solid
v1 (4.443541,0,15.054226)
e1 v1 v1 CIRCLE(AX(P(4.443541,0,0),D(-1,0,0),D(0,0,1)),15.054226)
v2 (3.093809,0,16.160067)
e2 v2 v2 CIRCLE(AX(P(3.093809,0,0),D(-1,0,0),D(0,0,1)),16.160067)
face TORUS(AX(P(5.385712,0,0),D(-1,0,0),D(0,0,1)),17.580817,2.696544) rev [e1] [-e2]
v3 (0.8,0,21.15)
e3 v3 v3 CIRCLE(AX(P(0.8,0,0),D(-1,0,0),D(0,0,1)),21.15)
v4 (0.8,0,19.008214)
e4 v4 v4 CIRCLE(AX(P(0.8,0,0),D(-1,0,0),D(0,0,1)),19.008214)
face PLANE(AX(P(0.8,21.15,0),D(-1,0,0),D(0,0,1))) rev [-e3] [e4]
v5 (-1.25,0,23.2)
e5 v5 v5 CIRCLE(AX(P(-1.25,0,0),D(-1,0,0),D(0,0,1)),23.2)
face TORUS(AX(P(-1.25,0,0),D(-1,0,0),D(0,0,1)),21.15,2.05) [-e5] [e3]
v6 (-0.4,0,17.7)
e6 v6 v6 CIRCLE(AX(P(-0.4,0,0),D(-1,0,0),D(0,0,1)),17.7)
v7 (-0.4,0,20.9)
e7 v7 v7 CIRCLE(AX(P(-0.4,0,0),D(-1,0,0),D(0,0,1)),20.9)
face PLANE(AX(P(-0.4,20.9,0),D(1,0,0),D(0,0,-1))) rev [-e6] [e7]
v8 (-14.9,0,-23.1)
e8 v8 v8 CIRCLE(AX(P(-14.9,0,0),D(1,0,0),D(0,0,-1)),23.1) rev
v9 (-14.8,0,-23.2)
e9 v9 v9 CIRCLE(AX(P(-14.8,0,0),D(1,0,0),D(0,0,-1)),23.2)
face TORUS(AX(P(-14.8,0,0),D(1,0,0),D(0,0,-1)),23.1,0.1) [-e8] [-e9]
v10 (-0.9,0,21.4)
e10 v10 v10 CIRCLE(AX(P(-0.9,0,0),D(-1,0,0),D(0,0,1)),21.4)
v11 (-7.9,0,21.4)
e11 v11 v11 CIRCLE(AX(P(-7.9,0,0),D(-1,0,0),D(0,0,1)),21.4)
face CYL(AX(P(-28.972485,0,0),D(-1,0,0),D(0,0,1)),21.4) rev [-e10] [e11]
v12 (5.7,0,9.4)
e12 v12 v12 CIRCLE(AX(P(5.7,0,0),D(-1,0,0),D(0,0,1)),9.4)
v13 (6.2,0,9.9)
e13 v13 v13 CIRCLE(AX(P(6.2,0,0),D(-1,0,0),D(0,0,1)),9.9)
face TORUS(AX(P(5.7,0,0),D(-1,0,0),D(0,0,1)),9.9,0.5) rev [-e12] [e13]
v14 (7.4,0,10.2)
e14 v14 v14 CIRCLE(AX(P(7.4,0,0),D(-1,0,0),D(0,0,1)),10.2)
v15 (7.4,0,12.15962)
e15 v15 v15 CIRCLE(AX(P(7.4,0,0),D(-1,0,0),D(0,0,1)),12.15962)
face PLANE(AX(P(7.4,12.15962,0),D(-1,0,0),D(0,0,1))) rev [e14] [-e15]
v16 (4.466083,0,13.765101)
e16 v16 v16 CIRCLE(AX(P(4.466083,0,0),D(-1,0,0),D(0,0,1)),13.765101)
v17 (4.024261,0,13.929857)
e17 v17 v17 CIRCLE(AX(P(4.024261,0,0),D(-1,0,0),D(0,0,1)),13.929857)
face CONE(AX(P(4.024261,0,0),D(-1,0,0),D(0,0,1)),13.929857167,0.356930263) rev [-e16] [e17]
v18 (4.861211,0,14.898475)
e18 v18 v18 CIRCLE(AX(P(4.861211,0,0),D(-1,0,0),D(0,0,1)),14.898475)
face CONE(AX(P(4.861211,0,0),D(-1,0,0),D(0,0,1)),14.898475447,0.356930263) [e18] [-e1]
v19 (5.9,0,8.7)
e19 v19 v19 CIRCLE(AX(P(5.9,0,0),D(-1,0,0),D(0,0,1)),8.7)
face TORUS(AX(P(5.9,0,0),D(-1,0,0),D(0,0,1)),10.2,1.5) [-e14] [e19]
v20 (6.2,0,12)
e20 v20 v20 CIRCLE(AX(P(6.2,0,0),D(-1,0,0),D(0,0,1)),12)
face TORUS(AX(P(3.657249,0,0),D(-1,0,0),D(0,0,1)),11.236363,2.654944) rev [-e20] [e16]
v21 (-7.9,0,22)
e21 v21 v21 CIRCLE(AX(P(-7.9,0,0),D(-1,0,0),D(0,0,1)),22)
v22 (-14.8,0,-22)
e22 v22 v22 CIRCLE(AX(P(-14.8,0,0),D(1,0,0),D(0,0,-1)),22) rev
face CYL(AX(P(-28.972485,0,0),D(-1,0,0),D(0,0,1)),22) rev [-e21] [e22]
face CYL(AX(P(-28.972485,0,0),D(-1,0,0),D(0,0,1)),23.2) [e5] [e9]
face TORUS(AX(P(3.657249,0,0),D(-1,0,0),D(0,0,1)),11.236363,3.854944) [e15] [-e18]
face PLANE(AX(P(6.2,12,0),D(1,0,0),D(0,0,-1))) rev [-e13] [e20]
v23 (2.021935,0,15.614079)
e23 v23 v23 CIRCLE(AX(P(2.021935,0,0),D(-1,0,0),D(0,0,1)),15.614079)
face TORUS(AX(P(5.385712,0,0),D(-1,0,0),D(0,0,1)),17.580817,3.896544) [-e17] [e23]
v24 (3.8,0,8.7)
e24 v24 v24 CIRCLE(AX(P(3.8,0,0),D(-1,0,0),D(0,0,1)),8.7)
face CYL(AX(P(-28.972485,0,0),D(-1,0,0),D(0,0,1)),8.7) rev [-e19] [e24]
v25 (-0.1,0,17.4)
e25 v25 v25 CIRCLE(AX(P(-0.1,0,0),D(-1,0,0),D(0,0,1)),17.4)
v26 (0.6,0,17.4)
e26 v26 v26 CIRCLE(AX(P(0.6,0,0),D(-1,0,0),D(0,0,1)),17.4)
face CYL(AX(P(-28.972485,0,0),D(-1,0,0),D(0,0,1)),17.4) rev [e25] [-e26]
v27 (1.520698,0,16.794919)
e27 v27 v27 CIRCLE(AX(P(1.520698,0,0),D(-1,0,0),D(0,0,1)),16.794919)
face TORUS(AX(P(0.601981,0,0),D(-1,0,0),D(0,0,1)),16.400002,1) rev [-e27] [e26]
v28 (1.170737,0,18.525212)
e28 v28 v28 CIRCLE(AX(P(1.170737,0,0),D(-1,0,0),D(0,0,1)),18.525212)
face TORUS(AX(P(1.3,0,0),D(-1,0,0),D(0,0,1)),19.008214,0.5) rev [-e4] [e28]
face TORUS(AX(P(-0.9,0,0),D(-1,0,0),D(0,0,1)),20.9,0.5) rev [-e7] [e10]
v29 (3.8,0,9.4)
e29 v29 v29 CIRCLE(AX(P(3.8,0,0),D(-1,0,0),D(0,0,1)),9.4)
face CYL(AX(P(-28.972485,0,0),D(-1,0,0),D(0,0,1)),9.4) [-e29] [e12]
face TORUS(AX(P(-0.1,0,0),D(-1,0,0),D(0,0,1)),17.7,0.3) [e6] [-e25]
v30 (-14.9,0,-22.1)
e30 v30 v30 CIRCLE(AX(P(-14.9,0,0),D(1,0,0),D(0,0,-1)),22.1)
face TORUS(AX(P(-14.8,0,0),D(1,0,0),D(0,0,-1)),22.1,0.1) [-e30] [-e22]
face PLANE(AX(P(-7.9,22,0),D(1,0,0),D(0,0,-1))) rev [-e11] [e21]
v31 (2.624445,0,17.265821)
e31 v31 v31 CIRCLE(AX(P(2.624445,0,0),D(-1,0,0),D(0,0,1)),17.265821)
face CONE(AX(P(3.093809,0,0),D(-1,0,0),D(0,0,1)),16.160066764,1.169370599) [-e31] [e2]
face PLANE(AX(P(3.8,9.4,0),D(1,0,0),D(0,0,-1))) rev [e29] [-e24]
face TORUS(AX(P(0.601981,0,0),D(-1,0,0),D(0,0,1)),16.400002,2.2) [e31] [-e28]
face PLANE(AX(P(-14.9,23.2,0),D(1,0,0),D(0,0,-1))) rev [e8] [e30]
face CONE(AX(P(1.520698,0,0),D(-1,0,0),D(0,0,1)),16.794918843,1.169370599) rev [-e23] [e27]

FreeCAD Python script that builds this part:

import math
import FreeCAD as App
import Part
import Sketcher

V = App.Vector
Q = App.Units.Quantity


def edges_at(feature, points):
    """Names of the edges that pass closest to the given points."""
    edges = feature.Shape.Edges
    near = lambda p: min(range(len(edges)), key=lambda i: edges[i].distToShape(Part.Vertex(*p))[0])
    return sorted({f"Edge{near(p) + 1}" for p in points})

doc = App.newDocument("Part")
body = doc.addObject("PartDesign::Body", "Body")

# Sketch on XY plane
sketch1 = body.newObject("Sketcher::SketchObject", "Sketch")
sketch1.AttachmentSupport = (doc.getObject("XY_Plane"), [""])
sketch1.MapMode = "FlatFace"
sketch1.addGeometry(Part.LineSegment(V(-14.9, 22, 0), V(-7.9, 22, 0)), False)
sketch1.addGeometry(Part.LineSegment(V(-7.9, 22, 0), V(-7.9, 21.4, 0)), False)
sketch1.addGeometry(Part.LineSegment(V(-7.9, 21.4, 0), V(-0.9, 21.4, 0)), False)
sketch1.addGeometry(Part.ArcOfCircle(Part.Circle(V(-0.9, 20.9, 0), V(0, 0, 1), 0.5), math.radians(0), math.radians(90)), False)
sketch1.addGeometry(Part.LineSegment(V(-0.4, 20.9, 0), V(-0.4, 17.7, 0)), False)
sketch1.addGeometry(Part.ArcOfCircle(Part.Circle(V(-0.1, 17.7, 0), V(0, 0, 1), 0.3), math.radians(-180), math.radians(-90)), False)
sketch1.addGeometry(Part.LineSegment(V(-0.1, 17.4, 0), V(0.6, 17.4, 0)), False)
sketch1.addGeometry(Part.ArcOfCircle(Part.Circle(V(0.601981, 16.400002, 0), V(0, 0, 1), 1), math.radians(23.26079), math.radians(90.113524)), False)
sketch1.addGeometry(Part.LineSegment(V(1.520698, 16.794919, 0), V(2.021935, 15.614079, 0)), False)
sketch1.addGeometry(Part.ArcOfCircle(Part.Circle(V(5.385712, 17.580817, 0), V(0, 0, 1), 3.896544), math.radians(-149.685973), math.radians(-110.450598)), False)
sketch1.addGeometry(Part.LineSegment(V(4.024261, 13.929857, 0), V(4.466083, 13.765101, 0)), False)
sketch1.addGeometry(Part.ArcOfCircle(Part.Circle(V(3.657249, 11.236363, 0), V(0, 0, 1), 2.654944), math.radians(16.71601), math.radians(72.262749)), False)
sketch1.addGeometry(Part.LineSegment(V(6.2, 12, 0), V(6.2, 9.9, 0)), False)
sketch1.addGeometry(Part.ArcOfCircle(Part.Circle(V(5.7, 9.9, 0), V(0, 0, 1), 0.5), math.radians(-90), math.radians(0)), False)
sketch1.addGeometry(Part.LineSegment(V(5.7, 9.4, 0), V(3.8, 9.4, 0)), False)
sketch1.addGeometry(Part.LineSegment(V(3.8, 9.4, 0), V(3.8, 8.7, 0)), False)
sketch1.addGeometry(Part.LineSegment(V(3.8, 8.7, 0), V(5.9, 8.7, 0)), False)
sketch1.addGeometry(Part.ArcOfCircle(Part.Circle(V(5.9, 10.2, 0), V(0, 0, 1), 1.5), math.radians(-90), math.radians(0)), False)
sketch1.addGeometry(Part.LineSegment(V(7.4, 10.2, 0), V(7.4, 12.15962, 0)), False)
sketch1.addGeometry(Part.ArcOfCircle(Part.Circle(V(3.657249, 11.236363, 0), V(0, 0, 1), 3.854944), math.radians(13.856989), math.radians(71.801106)), False)
sketch1.addGeometry(Part.LineSegment(V(4.861211, 14.898475, 0), V(4.443541, 15.054226, 0)), False)
sketch1.addGeometry(Part.ArcOfCircle(Part.Circle(V(5.385712, 17.580817, 0), V(0, 0, 1), 2.696544), math.radians(-148.205238), math.radians(-110.450598)), False)
sketch1.addGeometry(Part.LineSegment(V(3.093809, 16.160067, 0), V(2.624445, 17.265821, 0)), False)
sketch1.addGeometry(Part.ArcOfCircle(Part.Circle(V(0.601981, 16.400002, 0), V(0, 0, 1), 2.2), math.radians(23.175825), math.radians(75.017416)), False)
sketch1.addGeometry(Part.ArcOfCircle(Part.Circle(V(1.3, 19.008214, 0), V(0, 0, 1), 0.5), math.radians(-180), math.radians(-104.982584)), False)
sketch1.addGeometry(Part.LineSegment(V(0.8, 19.008214, 0), V(0.8, 21.15, 0)), False)
sketch1.addGeometry(Part.ArcOfCircle(Part.Circle(V(-1.25, 21.15, 0), V(0, 0, 1), 2.05), math.radians(0), math.radians(90)), False)
sketch1.addGeometry(Part.LineSegment(V(-1.25, 23.2, 0), V(-14.9, 23.2, 0)), False)
sketch1.addGeometry(Part.LineSegment(V(-14.9, 23.2, 0), V(-14.9, 22, 0)), False)
sketch1.addConstraint(Sketcher.Constraint("Coincident", 0, 2, 1, 1))
sketch1.addConstraint(Sketcher.Constraint("Coincident", 1, 2, 2, 1))
sketch1.addConstraint(Sketcher.Constraint("Coincident", 2, 2, 3, 2))
sketch1.addConstraint(Sketcher.Constraint("Coincident", 3, 1, 4, 1))
sketch1.addConstraint(Sketcher.Constraint("Coincident", 4, 2, 5, 1))
sketch1.addConstraint(Sketcher.Constraint("Coincident", 5, 2, 6, 1))
sketch1.addConstraint(Sketcher.Constraint("Coincident", 6, 2, 7, 2))
sketch1.addConstraint(Sketcher.Constraint("Coincident", 7, 1, 8, 1))
sketch1.addConstraint(Sketcher.Constraint("Coincident", 8, 2, 9, 1))
sketch1.addConstraint(Sketcher.Constraint("Coincident", 9, 2, 10, 1))
sketch1.addConstraint(Sketcher.Constraint("Coincident", 10, 2, 11, 2))
sketch1.addConstraint(Sketcher.Constraint("Coincident", 11, 1, 12, 1))
sketch1.addConstraint(Sketcher.Constraint("Coincident", 12, 2, 13, 2))
sketch1.addConstraint(Sketcher.Constraint("Coincident", 13, 1, 14, 1))
sketch1.addConstraint(Sketcher.Constraint("Coincident", 14, 2, 15, 1))
sketch1.addConstraint(Sketcher.Constraint("Coincident", 15, 2, 16, 1))
sketch1.addConstraint(Sketcher.Constraint("Coincident", 16, 2, 17, 1))
sketch1.addConstraint(Sketcher.Constraint("Coincident", 17, 2, 18, 1))
sketch1.addConstraint(Sketcher.Constraint("Coincident", 18, 2, 19, 1))
sketch1.addConstraint(Sketcher.Constraint("Coincident", 19, 2, 20, 1))
sketch1.addConstraint(Sketcher.Constraint("Coincident", 20, 2, 21, 2))
sketch1.addConstraint(Sketcher.Constraint("Coincident", 21, 1, 22, 1))
sketch1.addConstraint(Sketcher.Constraint("Coincident", 22, 2, 23, 1))
sketch1.addConstraint(Sketcher.Constraint("Coincident", 23, 2, 24, 2))
sketch1.addConstraint(Sketcher.Constraint("Coincident", 24, 1, 25, 1))
sketch1.addConstraint(Sketcher.Constraint("Coincident", 25, 2, 26, 1))
sketch1.addConstraint(Sketcher.Constraint("Coincident", 26, 2, 27, 1))
sketch1.addConstraint(Sketcher.Constraint("Coincident", 27, 2, 28, 1))
sketch1.addConstraint(Sketcher.Constraint("Coincident", 28, 2, 0, 1))
sketch1.addConstraint(Sketcher.Constraint("Horizontal", 0))
sketch1.addConstraint(Sketcher.Constraint("Vertical", 1))
sketch1.addConstraint(Sketcher.Constraint("Horizontal", 2))
sketch1.addConstraint(Sketcher.Constraint("Vertical", 4))
sketch1.addConstraint(Sketcher.Constraint("Horizontal", 6))
sketch1.addConstraint(Sketcher.Constraint("Vertical", 12))
sketch1.addConstraint(Sketcher.Constraint("Horizontal", 14))
sketch1.addConstraint(Sketcher.Constraint("Vertical", 15))
sketch1.addConstraint(Sketcher.Constraint("Horizontal", 16))
sketch1.addConstraint(Sketcher.Constraint("Vertical", 18))
sketch1.addConstraint(Sketcher.Constraint("Vertical", 25))
sketch1.addConstraint(Sketcher.Constraint("Horizontal", 27))
sketch1.addConstraint(Sketcher.Constraint("Vertical", 28))
sketch1.addConstraint(Sketcher.Constraint("Coincident", 19, 3, 11, 3))
sketch1.addConstraint(Sketcher.Constraint("Coincident", 21, 3, 9, 3))
sketch1.addConstraint(Sketcher.Constraint("Coincident", 23, 3, 7, 3))
sketch1.addConstraint(Sketcher.Constraint("Radius", 7, Q("1 mm")))
sketch1.addConstraint(Sketcher.Constraint("Radius", 3, Q("0.5 mm")))
sketch1.addConstraint(Sketcher.Constraint("Radius", 5, Q("0.3 mm")))
sketch1.addConstraint(Sketcher.Constraint("Radius", 13, Q("0.5 mm")))
sketch1.addConstraint(Sketcher.Constraint("Radius", 17, Q("1.5 mm")))
sketch1.addConstraint(Sketcher.Constraint("Radius", 23, Q("2.2 mm")))
sketch1.addConstraint(Sketcher.Constraint("Radius", 24, Q("0.5 mm")))
sketch1.addConstraint(Sketcher.Constraint("DistanceX", 0, 1, 0, 2, Q("7 mm")))
sketch1.addConstraint(Sketcher.Constraint("DistanceX", 2, 1, 2, 2, Q("7 mm")))
sketch1.addConstraint(Sketcher.Constraint("Radius", 26, Q("2.05 mm")))
sketch1.addConstraint(Sketcher.Constraint("DistanceX", 6, 1, 6, 2, Q("0.7 mm")))
sketch1.addConstraint(Sketcher.Constraint("DistanceX", 14, 2, 14, 1, Q("1.9 mm")))
sketch1.addConstraint(Sketcher.Constraint("DistanceX", 16, 1, 16, 2, Q("2.1 mm")))
sketch1.addConstraint(Sketcher.Constraint("DistanceY", 1, 2, 1, 1, Q("0.6 mm")))
sketch1.addConstraint(Sketcher.Constraint("DistanceY", 4, 2, 4, 1, Q("3.2 mm")))
sketch1.addConstraint(Sketcher.Constraint("DistanceY", 12, 2, 12, 1, Q("2.1 mm")))
sketch1.addConstraint(Sketcher.Constraint("DistanceY", 15, 2, 15, 1, Q("0.7 mm")))
sketch1.addConstraint(Sketcher.Constraint("DistanceY", 28, 2, 28, 1, Q("1.2 mm")))
sketch1.addConstraint(Sketcher.Constraint("DistanceY", -1, 1, 0, 2, Q("22 mm")))
sketch1.addConstraint(Sketcher.Constraint("DistanceY", -1, 1, 11, 1, Q("12 mm")))
sketch1.addConstraint(Sketcher.Constraint("DistanceY", 13, 3, 3, 3, Q("11 mm")))
sketch1.addConstraint(Sketcher.Constraint("DistanceX", 5, 3, 17, 3, Q("6 mm")))
sketch1.addConstraint(Sketcher.Constraint("DistanceX", 0, 2, 3, 3, Q("7 mm")))
sketch1.addConstraint(Sketcher.Constraint("DistanceY", 7, 3, 2, 2, Q("4.999998 mm")))
sketch1.addConstraint(Sketcher.Constraint("DistanceX", 4, 2, 6, 2, Q("1 mm")))
sketch1.addConstraint(Sketcher.Constraint("DistanceX", 27, 2, 27, 1, Q("13.65 mm")))
sketch1.addConstraint(Sketcher.Constraint("DistanceX", 3, 3, -1, 1, Q("0.9 mm")))
sketch1.addConstraint(Sketcher.Constraint("DistanceX", -1, 1, 13, 3, Q("5.7 mm")))
sketch1.addConstraint(Sketcher.Constraint("DistanceX", -1, 1, 24, 3, Q("1.3 mm")))
sketch1.addConstraint(Sketcher.Constraint("DistanceY", -1, 1, 3, 1, Q("20.9 mm")))
sketch1.addConstraint(Sketcher.Constraint("DistanceX", -1, 1, 13, 1, Q("5.7 mm")))
sketch1.addConstraint(Sketcher.Constraint("DistanceY", -1, 1, 17, 2, Q("10.2 mm")))
sketch1.addConstraint(Sketcher.Constraint("DistanceY", -1, 1, 25, 2, Q("21.15 mm")))
sketch1.addConstraint(Sketcher.Constraint("Radius", 9, Q("3.896544 mm")))
sketch1.addConstraint(Sketcher.Constraint("Radius", 11, Q("2.654944 mm")))
sketch1.addConstraint(Sketcher.Constraint("Radius", 19, Q("3.854944 mm")))
sketch1.addConstraint(Sketcher.Constraint("Radius", 21, Q("2.696544 mm")))
sketch1.addConstraint(Sketcher.Constraint("DistanceY", 18, 1, 18, 2, Q("1.95962 mm")))
sketch1.addConstraint(Sketcher.Constraint("DistanceX", -1, 1, 7, 1, Q("1.520698 mm")))
sketch1.addConstraint(Sketcher.Constraint("DistanceY", -1, 1, 10, 2, Q("13.765101 mm")))
sketch1.addConstraint(Sketcher.Constraint("DistanceX", 19, 2, 9, 3, Q("0.524501 mm")))
sketch1.addConstraint(Sketcher.Constraint("DistanceX", 21, 1, 19, 2, Q("1.767402 mm")))
sketch1.addConstraint(Sketcher.Constraint("Distance", 10, Q("0.471542 mm")))
sketch1.addConstraint(Sketcher.Constraint("DistanceY", 25, 1, 25, 2, Q("2.141786 mm")))
sketch1.addConstraint(Sketcher.Constraint("DistanceX", -1, 1, 7, 3, Q("0.601981 mm")))
sketch1.addConstraint(Sketcher.Constraint("DistanceY", -1, 1, 8, 2, Q("15.614079 mm")))
sketch1.addConstraint(Sketcher.Constraint("DistanceX", -1, 1, 9, 2, Q("4.024261 mm")))
sketch1.addConstraint(Sketcher.Constraint("DistanceX", -1, 1, 19, 2, Q("4.861211 mm")))
sketch1.addConstraint(Sketcher.Constraint("DistanceX", -1, 1, 20, 2, Q("4.443541 mm")))
sketch1.addConstraint(Sketcher.Constraint("DistanceY", -1, 1, 22, 2, Q("17.265821 mm")))
sketch1.addConstraint(Sketcher.Constraint("DistanceY", -1, 1, 23, 2, Q("18.525212 mm")))
revolution = body.newObject("PartDesign::Revolution", "Revolution")
revolution.Profile = sketch1
revolution.ReferenceAxis = (sketch1, ["H_Axis"])
revolution.Angle = 360
doc.recompute()

fillet = body.newObject("PartDesign::Fillet", "Fillet")
fillet.Base = (revolution, edges_at(revolution, [(-14.9, 0, -23.2), (-14.9, 0, -22)]))
fillet.Radius = 0.1

doc.recompute()
